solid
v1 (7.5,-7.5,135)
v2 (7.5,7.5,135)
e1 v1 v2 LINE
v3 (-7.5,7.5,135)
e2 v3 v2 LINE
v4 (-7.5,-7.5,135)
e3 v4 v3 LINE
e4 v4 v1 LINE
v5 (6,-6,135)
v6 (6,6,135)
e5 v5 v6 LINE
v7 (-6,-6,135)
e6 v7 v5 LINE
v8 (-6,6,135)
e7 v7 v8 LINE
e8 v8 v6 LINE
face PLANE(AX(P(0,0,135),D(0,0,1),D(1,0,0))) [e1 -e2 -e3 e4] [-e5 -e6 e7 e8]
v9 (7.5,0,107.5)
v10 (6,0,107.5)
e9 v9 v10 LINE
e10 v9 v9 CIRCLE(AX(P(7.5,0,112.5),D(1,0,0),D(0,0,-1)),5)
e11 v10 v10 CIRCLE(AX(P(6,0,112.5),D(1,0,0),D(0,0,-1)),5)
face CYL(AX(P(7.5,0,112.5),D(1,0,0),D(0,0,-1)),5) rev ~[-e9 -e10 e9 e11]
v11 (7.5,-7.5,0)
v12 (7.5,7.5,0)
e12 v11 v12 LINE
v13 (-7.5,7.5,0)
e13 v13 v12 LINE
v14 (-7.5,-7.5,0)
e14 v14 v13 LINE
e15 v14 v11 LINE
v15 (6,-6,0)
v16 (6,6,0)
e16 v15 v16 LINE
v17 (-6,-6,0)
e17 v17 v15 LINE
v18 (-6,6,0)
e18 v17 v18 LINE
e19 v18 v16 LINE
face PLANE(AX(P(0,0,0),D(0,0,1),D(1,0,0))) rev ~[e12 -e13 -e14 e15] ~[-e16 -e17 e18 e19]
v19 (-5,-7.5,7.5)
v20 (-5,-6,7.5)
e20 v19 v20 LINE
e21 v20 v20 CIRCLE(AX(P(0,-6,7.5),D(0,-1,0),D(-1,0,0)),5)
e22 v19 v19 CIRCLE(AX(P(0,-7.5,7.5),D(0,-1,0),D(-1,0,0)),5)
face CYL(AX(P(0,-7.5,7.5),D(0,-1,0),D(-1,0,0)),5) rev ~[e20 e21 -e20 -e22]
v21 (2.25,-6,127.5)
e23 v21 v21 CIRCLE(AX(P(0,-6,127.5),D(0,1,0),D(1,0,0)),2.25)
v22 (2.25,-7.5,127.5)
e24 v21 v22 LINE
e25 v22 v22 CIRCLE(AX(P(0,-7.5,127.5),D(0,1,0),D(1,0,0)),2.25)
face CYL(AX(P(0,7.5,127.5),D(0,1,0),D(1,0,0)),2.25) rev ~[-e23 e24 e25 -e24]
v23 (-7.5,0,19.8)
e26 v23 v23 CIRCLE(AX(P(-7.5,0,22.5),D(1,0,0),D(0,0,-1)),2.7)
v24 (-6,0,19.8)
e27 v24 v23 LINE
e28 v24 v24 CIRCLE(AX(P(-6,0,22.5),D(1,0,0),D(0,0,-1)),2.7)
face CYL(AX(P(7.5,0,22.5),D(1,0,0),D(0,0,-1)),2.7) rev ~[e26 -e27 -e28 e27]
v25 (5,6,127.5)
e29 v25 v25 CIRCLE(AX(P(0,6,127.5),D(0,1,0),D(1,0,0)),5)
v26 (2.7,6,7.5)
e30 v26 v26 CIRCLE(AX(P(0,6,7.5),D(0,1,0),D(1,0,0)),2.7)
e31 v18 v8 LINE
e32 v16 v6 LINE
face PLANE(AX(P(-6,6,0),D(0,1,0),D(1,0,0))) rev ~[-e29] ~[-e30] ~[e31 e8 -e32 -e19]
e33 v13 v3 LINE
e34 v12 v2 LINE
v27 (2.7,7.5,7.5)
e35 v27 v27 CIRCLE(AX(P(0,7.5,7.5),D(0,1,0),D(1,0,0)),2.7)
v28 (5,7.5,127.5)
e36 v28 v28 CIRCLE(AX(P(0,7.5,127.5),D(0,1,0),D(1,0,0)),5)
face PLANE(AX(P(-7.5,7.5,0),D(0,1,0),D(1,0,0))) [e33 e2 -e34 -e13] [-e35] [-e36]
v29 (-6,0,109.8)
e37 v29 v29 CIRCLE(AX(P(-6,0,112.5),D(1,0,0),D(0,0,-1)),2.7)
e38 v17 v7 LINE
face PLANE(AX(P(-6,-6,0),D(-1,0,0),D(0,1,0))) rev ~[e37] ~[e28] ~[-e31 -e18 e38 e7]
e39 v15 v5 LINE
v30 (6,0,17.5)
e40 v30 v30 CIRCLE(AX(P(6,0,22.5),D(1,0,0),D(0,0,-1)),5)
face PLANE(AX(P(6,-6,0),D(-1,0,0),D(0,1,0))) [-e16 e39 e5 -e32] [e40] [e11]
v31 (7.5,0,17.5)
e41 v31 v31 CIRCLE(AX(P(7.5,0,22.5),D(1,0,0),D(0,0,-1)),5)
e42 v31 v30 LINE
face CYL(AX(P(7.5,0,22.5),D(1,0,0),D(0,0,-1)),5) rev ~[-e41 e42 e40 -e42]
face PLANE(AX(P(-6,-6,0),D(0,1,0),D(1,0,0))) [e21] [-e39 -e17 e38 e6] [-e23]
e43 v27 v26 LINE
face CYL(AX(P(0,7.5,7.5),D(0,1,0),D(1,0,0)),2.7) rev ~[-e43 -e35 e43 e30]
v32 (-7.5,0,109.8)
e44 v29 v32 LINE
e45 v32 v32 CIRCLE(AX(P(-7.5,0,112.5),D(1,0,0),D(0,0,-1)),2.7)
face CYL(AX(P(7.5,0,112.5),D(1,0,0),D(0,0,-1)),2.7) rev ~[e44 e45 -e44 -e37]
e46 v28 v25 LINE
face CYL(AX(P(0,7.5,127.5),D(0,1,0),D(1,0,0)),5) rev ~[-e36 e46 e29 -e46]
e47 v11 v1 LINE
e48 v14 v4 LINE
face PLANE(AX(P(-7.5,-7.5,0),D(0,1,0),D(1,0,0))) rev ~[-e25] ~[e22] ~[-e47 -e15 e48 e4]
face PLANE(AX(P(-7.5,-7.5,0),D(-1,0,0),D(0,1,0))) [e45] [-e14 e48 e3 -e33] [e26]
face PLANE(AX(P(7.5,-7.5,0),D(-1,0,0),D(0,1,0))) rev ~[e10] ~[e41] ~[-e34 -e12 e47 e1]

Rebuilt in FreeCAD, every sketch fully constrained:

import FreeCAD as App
import Part
import Sketcher
Q = App.Units.Quantity


def add_polygon(sketch, points):
    """Adds a closed chain of lines whose ends are joined by coincident constraints."""
    first, n = sketch.GeometryCount, len(points)
    for a, b in zip(points, points[1:] + points[:1]):
        sketch.addGeometry(Part.LineSegment(App.Vector(*a, 0), App.Vector(*b, 0)), False)
    for i in range(n):
        sketch.addConstraint(Sketcher.Constraint("Coincident", first + i, 2, first + (i + 1) % n, 1))

doc = App.newDocument("Part")
body = doc.addObject("PartDesign::Body", "Body")

sketch1 = body.newObject("Sketcher::SketchObject", "Sketch")
sketch1.AttachmentSupport = (doc.getObject("XY_Plane"), [""])
sketch1.MapMode = "FlatFace"
add_polygon(sketch1, [(-8, 8), (-8, -8), (8, -8), (8, 8)])
add_polygon(sketch1, [(6, -6), (-6, -6), (-6, 6), (6, 6)])
sketch1.addConstraint([
    Sketcher.Constraint("Vertical", 0),
    Sketcher.Constraint("Horizontal", 1),
    Sketcher.Constraint("Vertical", 2),
    Sketcher.Constraint("Horizontal", 3),
    Sketcher.Constraint("Horizontal", 4),
    Sketcher.Constraint("Vertical", 5),
    Sketcher.Constraint("Horizontal", 6),
    Sketcher.Constraint("Vertical", 7),
    Sketcher.Constraint("Symmetric", 0, 2, 2, 2, -1, 1),
    Sketcher.Constraint("Symmetric", 4, 2, 6, 2, -1, 1),
    Sketcher.Constraint("Equal", 3, 0),
    Sketcher.Constraint("Equal", 6, 5),
    Sketcher.Constraint("DistanceX", 1, 1, 1, 2, Q("15 mm")),
    Sketcher.Constraint("DistanceX", 4, 2, 4, 1, Q("12 mm")),
])
pad1 = body.newObject("PartDesign::Pad", "Pad")
pad1.Profile = sketch1
pad1.Length = 135

sketch2 = body.newObject("Sketcher::SketchObject", "Sketch001")
sketch2.AttachmentSupport = (doc.getObject("YZ_Plane"), [""])
sketch2.MapMode = "FlatFace"
sketch2.AttachmentOffset = App.Placement(App.Vector(0, 0, 7.5), App.Rotation())
sketch2.addGeometry([
    Part.Circle(App.Vector(0, 112.5, 0), App.Vector(0, 0, 1), 2.7),
    Part.Circle(App.Vector(0, 22.5, 0), App.Vector(0, 0, 1), 2.7),
], False)
sketch2.addConstraint([
    Sketcher.Constraint("Equal", 0, 1),
    Sketcher.Constraint("PointOnObject", 0, 3, -2),
    Sketcher.Constraint("PointOnObject", 1, 3, -2),
    Sketcher.Constraint("Diameter", 0, Q("5.4 mm")),
    Sketcher.Constraint("DistanceY", 1, 3, 0, 3, Q("90 mm")),
    Sketcher.Constraint("DistanceY", -1, 1, 0, 3, Q("112.5 mm")),
])
pocket1 = body.newObject("PartDesign::Pocket", "Pocket")
pocket1.Profile = sketch2
pocket1.Length = 25

sketch3 = body.newObject("Sketcher::SketchObject", "Sketch002")
sketch3.AttachmentSupport = (doc.getObject("XZ_Plane"), [""])
sketch3.MapMode = "FlatFace"
sketch3.AttachmentOffset = App.Placement(App.Vector(0, 0, -7.5), App.Rotation())
sketch3.addGeometry([
    Part.Circle(App.Vector(0, 7.5, 0), App.Vector(0, 0, 1), 2.7),
    Part.Circle(App.Vector(0, 127.5, 0), App.Vector(0, 0, 1), 2.2),
], False)
sketch3.addConstraint([
    Sketcher.Constraint("PointOnObject", 0, 3, -2),
    Sketcher.Constraint("PointOnObject", 1, 3, -2),
    Sketcher.Constraint("Diameter", 0, Q("5.4 mm")),
    Sketcher.Constraint("Diameter", 1, Q("4.5 mm")),
    Sketcher.Constraint("DistanceY", 0, 3, 1, 3, Q("120 mm")),
    Sketcher.Constraint("DistanceY", -1, 1, 0, 3, Q("7.5 mm")),
])
pocket2 = body.newObject("PartDesign::Pocket", "Pocket001")
pocket2.Profile = sketch3
pocket2.Length = 25
pocket2.Reversed = True

sketch4 = body.newObject("Sketcher::SketchObject", "Sketch003")
sketch4.AttachmentSupport = (doc.getObject("XZ_Plane"), [""])
sketch4.MapMode = "FlatFace"
sketch4.AttachmentOffset = App.Placement(App.Vector(0, 0, -7.5), App.Rotation())
sketch4.addGeometry(Part.Circle(App.Vector(0, 128, 0), App.Vector(0, 0, 1), 5), False)
sketch4.addConstraint([
    Sketcher.Constraint("PointOnObject", 0, 3, -2),
    Sketcher.Constraint("Diameter", 0, Q("10 mm")),
    Sketcher.Constraint("DistanceY", -1, 1, 0, 3, Q("127.5 mm")),
])
pocket3 = body.newObject("PartDesign::Pocket", "Pocket002")
pocket3.Profile = sketch4
pocket3.Length = 10
pocket3.Reversed = True

sketch5 = body.newObject("Sketcher::SketchObject", "Sketch004")
sketch5.AttachmentSupport = (doc.getObject("YZ_Plane"), [""])
sketch5.MapMode = "FlatFace"
sketch5.AttachmentOffset = App.Placement(App.Vector(0, 0, 7.5), App.Rotation())
sketch5.addGeometry([
    Part.Circle(App.Vector(0, 22, 0), App.Vector(0, 0, 1), 5),
    Part.Circle(App.Vector(0, 112, 0), App.Vector(0, 0, 1), 5),
], False)
sketch5.addConstraint([
    Sketcher.Constraint("Equal", 0, 1),
    Sketcher.Constraint("PointOnObject", 0, 3, -2),
    Sketcher.Constraint("PointOnObject", 1, 3, -2),
    Sketcher.Constraint("Diameter", 0, Q("10 mm")),
    Sketcher.Constraint("DistanceY", 0, 3, 1, 3, Q("90 mm")),
    Sketcher.Constraint("DistanceY", -1, 1, 0, 3, Q("22.5 mm")),
])
pocket4 = body.newObject("PartDesign::Pocket", "Pocket003")
pocket4.Profile = sketch5
pocket4.Length = 10

sketch6 = body.newObject("Sketcher::SketchObject", "Sketch005")
sketch6.AttachmentSupport = (doc.getObject("XZ_Plane"), [""])
sketch6.MapMode = "FlatFace"
sketch6.AttachmentOffset = App.Placement(App.Vector(0, 0, 7.5), App.Rotation())
sketch6.addGeometry(Part.Circle(App.Vector(0, 8, 0), App.Vector(0, 0, 1), 5), False)
sketch6.addConstraint([
    Sketcher.Constraint("PointOnObject", 0, 3, -2),
    Sketcher.Constraint("Diameter", 0, Q("10 mm")),
    Sketcher.Constraint("DistanceY", -1, 1, 0, 3, Q("7.5 mm")),
])
pocket5 = body.newObject("PartDesign::Pocket", "Pocket004")
pocket5.Profile = sketch6
pocket5.Length = 10

doc.recompute()
